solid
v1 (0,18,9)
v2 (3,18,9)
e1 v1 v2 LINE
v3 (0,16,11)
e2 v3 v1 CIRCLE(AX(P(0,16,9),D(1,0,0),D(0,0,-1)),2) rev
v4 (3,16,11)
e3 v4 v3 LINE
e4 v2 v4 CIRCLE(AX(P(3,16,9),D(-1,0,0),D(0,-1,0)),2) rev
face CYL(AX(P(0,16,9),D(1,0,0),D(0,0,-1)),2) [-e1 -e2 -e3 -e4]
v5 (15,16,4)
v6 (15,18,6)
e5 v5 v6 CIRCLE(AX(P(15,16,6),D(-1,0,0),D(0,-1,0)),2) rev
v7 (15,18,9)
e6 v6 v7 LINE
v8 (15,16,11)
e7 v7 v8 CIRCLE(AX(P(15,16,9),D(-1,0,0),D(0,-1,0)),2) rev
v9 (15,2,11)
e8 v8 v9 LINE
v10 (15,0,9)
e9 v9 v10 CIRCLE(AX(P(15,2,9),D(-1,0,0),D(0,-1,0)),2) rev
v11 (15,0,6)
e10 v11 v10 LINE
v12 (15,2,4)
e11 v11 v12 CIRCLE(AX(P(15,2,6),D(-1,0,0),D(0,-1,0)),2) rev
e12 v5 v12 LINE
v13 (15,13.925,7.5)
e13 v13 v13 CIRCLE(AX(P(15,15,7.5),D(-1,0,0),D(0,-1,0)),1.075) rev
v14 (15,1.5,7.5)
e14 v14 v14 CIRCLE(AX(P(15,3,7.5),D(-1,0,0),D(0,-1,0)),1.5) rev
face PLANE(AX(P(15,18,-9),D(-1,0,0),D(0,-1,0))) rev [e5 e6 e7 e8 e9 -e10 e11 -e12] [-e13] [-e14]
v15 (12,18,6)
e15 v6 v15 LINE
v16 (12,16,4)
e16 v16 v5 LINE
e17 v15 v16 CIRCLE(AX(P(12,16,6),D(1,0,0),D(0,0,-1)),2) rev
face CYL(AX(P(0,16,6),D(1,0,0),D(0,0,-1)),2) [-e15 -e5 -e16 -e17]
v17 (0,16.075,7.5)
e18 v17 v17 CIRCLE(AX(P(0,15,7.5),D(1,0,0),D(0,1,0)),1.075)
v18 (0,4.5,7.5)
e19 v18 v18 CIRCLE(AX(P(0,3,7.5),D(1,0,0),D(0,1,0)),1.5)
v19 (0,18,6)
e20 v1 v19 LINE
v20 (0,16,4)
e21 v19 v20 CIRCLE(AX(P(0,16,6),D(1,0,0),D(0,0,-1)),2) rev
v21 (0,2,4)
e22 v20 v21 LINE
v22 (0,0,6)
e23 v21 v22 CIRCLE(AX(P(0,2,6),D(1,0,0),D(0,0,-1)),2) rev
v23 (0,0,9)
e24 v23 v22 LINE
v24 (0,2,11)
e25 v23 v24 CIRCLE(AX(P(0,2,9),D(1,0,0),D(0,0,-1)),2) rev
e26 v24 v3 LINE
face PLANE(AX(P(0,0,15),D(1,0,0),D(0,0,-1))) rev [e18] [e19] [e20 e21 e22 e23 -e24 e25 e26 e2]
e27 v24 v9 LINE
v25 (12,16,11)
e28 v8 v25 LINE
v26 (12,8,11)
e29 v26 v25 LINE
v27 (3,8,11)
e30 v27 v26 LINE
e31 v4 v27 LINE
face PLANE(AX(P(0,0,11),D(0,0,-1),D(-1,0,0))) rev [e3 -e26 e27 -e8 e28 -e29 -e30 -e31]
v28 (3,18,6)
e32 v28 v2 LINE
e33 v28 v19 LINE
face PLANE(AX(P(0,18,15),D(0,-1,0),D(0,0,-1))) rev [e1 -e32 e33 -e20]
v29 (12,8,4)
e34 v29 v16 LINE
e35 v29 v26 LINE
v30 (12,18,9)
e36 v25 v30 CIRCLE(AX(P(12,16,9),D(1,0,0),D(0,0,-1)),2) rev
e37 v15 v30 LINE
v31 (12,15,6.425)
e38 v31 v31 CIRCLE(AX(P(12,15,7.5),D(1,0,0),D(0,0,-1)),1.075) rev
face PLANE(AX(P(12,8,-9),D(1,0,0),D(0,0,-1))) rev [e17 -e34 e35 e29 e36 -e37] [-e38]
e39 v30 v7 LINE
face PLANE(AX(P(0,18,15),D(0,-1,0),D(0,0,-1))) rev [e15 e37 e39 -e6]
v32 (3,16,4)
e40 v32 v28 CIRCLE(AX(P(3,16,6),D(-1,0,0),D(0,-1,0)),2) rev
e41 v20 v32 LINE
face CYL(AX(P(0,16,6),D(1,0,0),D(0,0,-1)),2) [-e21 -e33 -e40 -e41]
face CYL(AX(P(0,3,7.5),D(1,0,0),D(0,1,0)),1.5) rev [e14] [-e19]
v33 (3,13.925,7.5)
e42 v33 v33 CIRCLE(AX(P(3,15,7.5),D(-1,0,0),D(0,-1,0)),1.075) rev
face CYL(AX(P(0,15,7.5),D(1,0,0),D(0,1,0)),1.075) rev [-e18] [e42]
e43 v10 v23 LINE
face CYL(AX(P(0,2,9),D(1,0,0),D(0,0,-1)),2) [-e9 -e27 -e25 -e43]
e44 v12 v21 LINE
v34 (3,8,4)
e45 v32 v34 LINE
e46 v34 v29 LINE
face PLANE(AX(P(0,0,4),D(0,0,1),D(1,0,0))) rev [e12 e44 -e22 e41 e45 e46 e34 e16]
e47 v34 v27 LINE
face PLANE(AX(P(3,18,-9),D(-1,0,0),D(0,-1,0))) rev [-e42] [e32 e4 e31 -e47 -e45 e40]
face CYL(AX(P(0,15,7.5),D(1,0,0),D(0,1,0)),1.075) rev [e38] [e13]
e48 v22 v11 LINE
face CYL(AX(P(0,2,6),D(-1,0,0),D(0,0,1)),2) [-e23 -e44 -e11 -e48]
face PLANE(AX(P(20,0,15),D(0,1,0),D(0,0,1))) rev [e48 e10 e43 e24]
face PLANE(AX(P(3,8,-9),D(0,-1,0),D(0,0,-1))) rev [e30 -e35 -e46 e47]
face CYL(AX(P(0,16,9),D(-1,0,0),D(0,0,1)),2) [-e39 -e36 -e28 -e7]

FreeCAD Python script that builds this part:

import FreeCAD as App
import Part
import Sketcher
Q = App.Units.Quantity


def edges_at(feature, points):
    """Names of the edges that pass closest to the given points."""
    edges = feature.Shape.Edges
    near = lambda p: min(range(len(edges)), key=lambda i: edges[i].distToShape(Part.Vertex(*p))[0])
    return sorted({f"Edge{near(p) + 1}" for p in points})

doc = App.newDocument("Part")
body = doc.addObject("PartDesign::Body", "Body")

sketch1 = body.newObject("Sketcher::SketchObject", "Sketch")
sketch1.AttachmentSupport = (doc.getObject("XY_Plane"), [""])
sketch1.MapMode = "FlatFace"
sketch1.addGeometry(Part.LineSegment(App.Vector(0, 18, 0), App.Vector(0, 0, 0)), False)
sketch1.addGeometry(Part.LineSegment(App.Vector(0, 0, 0), App.Vector(20, 0, 0)), False)
sketch1.addGeometry(Part.LineSegment(App.Vector(20, 0, 0), App.Vector(20, 18, 0)), False)
sketch1.addGeometry(Part.LineSegment(App.Vector(20, 18, 0), App.Vector(0, 18, 0)), False)
sketch1.addConstraint(Sketcher.Constraint("Coincident", 0, 2, 1, 1))
sketch1.addConstraint(Sketcher.Constraint("Coincident", 1, 2, 2, 1))
sketch1.addConstraint(Sketcher.Constraint("Coincident", 2, 2, 3, 1))
sketch1.addConstraint(Sketcher.Constraint("Coincident", 3, 2, 0, 1))
sketch1.addConstraint(Sketcher.Constraint("Vertical", 0))
sketch1.addConstraint(Sketcher.Constraint("Horizontal", 1))
sketch1.addConstraint(Sketcher.Constraint("Vertical", 2))
sketch1.addConstraint(Sketcher.Constraint("Horizontal", 3))
sketch1.addConstraint(Sketcher.Constraint("Coincident", 0, 2, -1, 1))
sketch1.addConstraint(Sketcher.Constraint("DistanceX", 1, 1, 1, 2, Q("20 mm")))
sketch1.addConstraint(Sketcher.Constraint("DistanceY", 0, 2, 0, 1, Q("18 mm")))
pad1 = body.newObject("PartDesign::Pad", "Pad")
pad1.Profile = sketch1
pad1.Length = 15

sketch2 = body.newObject("Sketcher::SketchObject", "Sketch001")
sketch2.AttachmentSupport = (doc.getObject("YZ_Plane"), [""])
sketch2.MapMode = "FlatFace"
sketch2.AttachmentOffset = App.Placement(App.Vector(0, 0, 20), App.Rotation())
sketch2.addGeometry(Part.Circle(App.Vector(3, 7.5, 0), App.Vector(0, 0, 1), 1.5), False)
sketch2.addGeometry(Part.Circle(App.Vector(22, 7.5, 0), App.Vector(0, 0, 1), 1.5), False)
sketch2.addConstraint(Sketcher.Constraint("Equal", 0, 1))
sketch2.addConstraint(Sketcher.Constraint("Horizontal", 0, 3, 1, 3))
sketch2.addConstraint(Sketcher.Constraint("Diameter", 0, Q("3 mm")))
sketch2.addConstraint(Sketcher.Constraint("DistanceX", -1, 1, 0, 3, Q("3 mm")))
sketch2.addConstraint(Sketcher.Constraint("DistanceX", -1, 1, 1, 3, Q("22 mm")))
sketch2.addConstraint(Sketcher.Constraint("DistanceY", -1, 1, 0, 3, Q("7.5 mm")))
pocket1 = body.newObject("PartDesign::Pocket", "Pocket")
pocket1.Profile = sketch2
pocket1.Type = "ThroughAll"

sketch3 = body.newObject("Sketcher::SketchObject", "Sketch002")
sketch3.AttachmentSupport = (doc.getObject("XY_Plane"), [""])
sketch3.MapMode = "FlatFace"
sketch3.AttachmentOffset = App.Placement(App.Vector(0, 0, 15), App.Rotation())
sketch3.addGeometry(Part.LineSegment(App.Vector(5, 18, 0), App.Vector(5, 8, 0)), False)
sketch3.addGeometry(Part.LineSegment(App.Vector(5, 8, 0), App.Vector(15, 8, 0)), False)
sketch3.addGeometry(Part.LineSegment(App.Vector(15, 8, 0), App.Vector(15, 18, 0)), False)
sketch3.addGeometry(Part.LineSegment(App.Vector(15, 18, 0), App.Vector(5, 18, 0)), False)
sketch3.addConstraint(Sketcher.Constraint("Coincident", 0, 2, 1, 1))
sketch3.addConstraint(Sketcher.Constraint("Coincident", 1, 2, 2, 1))
sketch3.addConstraint(Sketcher.Constraint("Coincident", 2, 2, 3, 1))
sketch3.addConstraint(Sketcher.Constraint("Coincident", 3, 2, 0, 1))
sketch3.addConstraint(Sketcher.Constraint("Vertical", 0))
sketch3.addConstraint(Sketcher.Constraint("Horizontal", 1))
sketch3.addConstraint(Sketcher.Constraint("Vertical", 2))
sketch3.addConstraint(Sketcher.Constraint("Horizontal", 3))
sketch3.addConstraint(Sketcher.Constraint("Equal", 3, 0))
sketch3.addConstraint(Sketcher.Constraint("DistanceX", 1, 1, 1, 2, Q("10 mm")))
sketch3.addConstraint(Sketcher.Constraint("DistanceX", -1, 1, 0, 2, Q("5 mm")))
sketch3.addConstraint(Sketcher.Constraint("DistanceY", -1, 1, 0, 2, Q("8 mm")))
pocket2 = body.newObject("PartDesign::Pocket", "Pocket001")
pocket2.Profile = sketch3
pocket2.Length = 15

sketch4 = body.newObject("Sketcher::SketchObject", "Sketch003")
sketch4.AttachmentSupport = (doc.getObject("YZ_Plane"), [""])
sketch4.MapMode = "FlatFace"
sketch4.AttachmentOffset = App.Placement(App.Vector(0, 0, 20), App.Rotation())
sketch4.addGeometry(Part.LineSegment(App.Vector(18, 15, 0), App.Vector(0, 15, 0)), False)
sketch4.addGeometry(Part.LineSegment(App.Vector(0, 15, 0), App.Vector(0, 11, 0)), False)
sketch4.addGeometry(Part.LineSegment(App.Vector(0, 11, 0), App.Vector(18, 11, 0)), False)
sketch4.addGeometry(Part.LineSegment(App.Vector(18, 11, 0), App.Vector(18, 15, 0)), False)
sketch4.addGeometry(Part.LineSegment(App.Vector(18, 4, 0), App.Vector(0, 4, 0)), False)
sketch4.addGeometry(Part.LineSegment(App.Vector(0, 4, 0), App.Vector(0, 0, 0)), False)
sketch4.addGeometry(Part.LineSegment(App.Vector(0, 0, 0), App.Vector(18, 0, 0)), False)
sketch4.addGeometry(Part.LineSegment(App.Vector(18, 0, 0), App.Vector(18, 4, 0)), False)
sketch4.addConstraint(Sketcher.Constraint("Coincident", 0, 2, 1, 1))
sketch4.addConstraint(Sketcher.Constraint("Coincident", 1, 2, 2, 1))
sketch4.addConstraint(Sketcher.Constraint("Coincident", 2, 2, 3, 1))
sketch4.addConstraint(Sketcher.Constraint("Coincident", 3, 2, 0, 1))
sketch4.addConstraint(Sketcher.Constraint("Coincident", 4, 2, 5, 1))
sketch4.addConstraint(Sketcher.Constraint("Coincident", 5, 2, 6, 1))
sketch4.addConstraint(Sketcher.Constraint("Coincident", 6, 2, 7, 1))
sketch4.addConstraint(Sketcher.Constraint("Coincident", 7, 2, 4, 1))
sketch4.addConstraint(Sketcher.Constraint("Horizontal", 0))
sketch4.addConstraint(Sketcher.Constraint("Vertical", 1))
sketch4.addConstraint(Sketcher.Constraint("Horizontal", 2))
sketch4.addConstraint(Sketcher.Constraint("Vertical", 3))
sketch4.addConstraint(Sketcher.Constraint("Horizontal", 4))
sketch4.addConstraint(Sketcher.Constraint("Vertical", 5))
sketch4.addConstraint(Sketcher.Constraint("Horizontal", 6))
sketch4.addConstraint(Sketcher.Constraint("Vertical", 7))
sketch4.addConstraint(Sketcher.Constraint("Coincident", 5, 2, -1, 1))
sketch4.addConstraint(Sketcher.Constraint("PointOnObject", 0, 2, -2))
sketch4.addConstraint(Sketcher.Constraint("Vertical", 3, 2, 6, 2))
sketch4.addConstraint(Sketcher.Constraint("Equal", 3, 5))
sketch4.addConstraint(Sketcher.Constraint("DistanceX", 0, 2, 0, 1, Q("18 mm")))
sketch4.addConstraint(Sketcher.Constraint("DistanceY", 1, 2, 1, 1, Q("4 mm")))
sketch4.addConstraint(Sketcher.Constraint("DistanceY", -1, 1, 0, 2, Q("15 mm")))
pocket3 = body.newObject("PartDesign::Pocket", "Pocket002")
pocket3.Profile = sketch4
pocket3.Type = "ThroughAll"

sketch5 = body.newObject("Sketcher::SketchObject", "Sketch004")
sketch5.AttachmentSupport = (doc.getObject("YZ_Plane"), [""])
sketch5.MapMode = "FlatFace"
sketch5.AttachmentOffset = App.Placement(App.Vector(0, 0, 20), App.Rotation())
sketch5.addGeometry(Part.Circle(App.Vector(15, 7.5, 0), App.Vector(0, 0, 1), 1), False)
sketch5.addConstraint(Sketcher.Constraint("Diameter", 0, Q("2 mm")))
sketch5.addConstraint(Sketcher.Constraint("DistanceX", -1, 1, 0, 3, Q("15 mm")))
sketch5.addConstraint(Sketcher.Constraint("DistanceY", -1, 1, 0, 3, Q("7.5 mm")))
pocket4 = body.newObject("PartDesign::Pocket", "Pocket003")
pocket4.Profile = sketch5
pocket4.Type = "ThroughAll"

sketch6 = body.newObject("Sketcher::SketchObject", "Sketch005")
sketch6.AttachmentSupport = (doc.getObject("XY_Plane"), [""])
sketch6.MapMode = "FlatFace"
sketch6.AttachmentOffset = App.Placement(App.Vector(0, 0, 11), App.Rotation())
sketch6.addGeometry(Part.LineSegment(App.Vector(4, 18, 0), App.Vector(4, 8, 0)), False)
sketch6.addGeometry(Part.LineSegment(App.Vector(4, 8, 0), App.Vector(16, 8, 0)), False)
sketch6.addGeometry(Part.LineSegment(App.Vector(16, 8, 0), App.Vector(16, 18, 0)), False)
sketch6.addGeometry(Part.LineSegment(App.Vector(16, 18, 0), App.Vector(4, 18, 0)), False)
sketch6.addConstraint(Sketcher.Constraint("Coincident", 0, 2, 1, 1))
sketch6.addConstraint(Sketcher.Constraint("Coincident", 1, 2, 2, 1))
sketch6.addConstraint(Sketcher.Constraint("Coincident", 2, 2, 3, 1))
sketch6.addConstraint(Sketcher.Constraint("Coincident", 3, 2, 0, 1))
sketch6.addConstraint(Sketcher.Constraint("Vertical", 0))
sketch6.addConstraint(Sketcher.Constraint("Horizontal", 1))
sketch6.addConstraint(Sketcher.Constraint("Vertical", 2))
sketch6.addConstraint(Sketcher.Constraint("Horizontal", 3))
sketch6.addConstraint(Sketcher.Constraint("DistanceY", 0, 2, 0, 1, Q("10 mm")))
sketch6.addConstraint(Sketcher.Constraint("DistanceX", 1, 1, 1, 2, Q("11.4 mm")))
sketch6.addConstraint(Sketcher.Constraint("DistanceY", -1, 1, 0, 2, Q("8 mm")))
sketch6.addConstraint(Sketcher.Constraint("DistanceX", -1, 1, 0, 2, Q("4.3 mm")))
pocket5 = body.newObject("PartDesign::Pocket", "Pocket004")
pocket5.Profile = sketch6
pocket5.Length = 10

sketch7 = body.newObject("Sketcher::SketchObject", "Sketch006")
sketch7.AttachmentSupport = (doc.getObject("XY_Plane"), [""])
sketch7.MapMode = "FlatFace"
sketch7.AttachmentOffset = App.Placement(App.Vector(0, 0, 11), App.Rotation())
sketch7.addGeometry(Part.LineSegment(App.Vector(4, 18, 0), App.Vector(4, 8, 0)), False)
sketch7.addGeometry(Part.LineSegment(App.Vector(4, 8, 0), App.Vector(16, 8, 0)), False)
sketch7.addGeometry(Part.LineSegment(App.Vector(16, 8, 0), App.Vector(16, 18, 0)), False)
sketch7.addGeometry(Part.LineSegment(App.Vector(16, 18, 0), App.Vector(4, 18, 0)), False)
sketch7.addConstraint(Sketcher.Constraint("Coincident", 0, 2, 1, 1))
sketch7.addConstraint(Sketcher.Constraint("Coincident", 1, 2, 2, 1))
sketch7.addConstraint(Sketcher.Constraint("Coincident", 2, 2, 3, 1))
sketch7.addConstraint(Sketcher.Constraint("Coincident", 3, 2, 0, 1))
sketch7.addConstraint(Sketcher.Constraint("Vertical", 0))
sketch7.addConstraint(Sketcher.Constraint("Horizontal", 1))
sketch7.addConstraint(Sketcher.Constraint("Vertical", 2))
sketch7.addConstraint(Sketcher.Constraint("Horizontal", 3))
sketch7.addConstraint(Sketcher.Constraint("DistanceY", 0, 2, 0, 1, Q("10 mm")))
sketch7.addConstraint(Sketcher.Constraint("DistanceX", 1, 1, 1, 2, Q("11.4 mm")))
sketch7.addConstraint(Sketcher.Constraint("DistanceY", -1, 1, 0, 2, Q("8 mm")))
sketch7.addConstraint(Sketcher.Constraint("DistanceX", -1, 1, 0, 2, Q("4.3 mm")))
pad2 = body.newObject("PartDesign::Pad", "Pad001")
pad2.Profile = sketch7
pad2.Length = 7
pad2.Reversed = True

sketch8 = body.newObject("Sketcher::SketchObject", "Sketch007")
sketch8.AttachmentSupport = (doc.getObject("YZ_Plane"), [""])
sketch8.MapMode = "FlatFace"
sketch8.AttachmentOffset = App.Placement(App.Vector(0, 0, 20), App.Rotation())
sketch8.addGeometry(Part.Circle(App.Vector(15, 7.5, 0), App.Vector(0, 0, 1), 1.1), False)
sketch8.addConstraint(Sketcher.Constraint("Diameter", 0, Q("2.15 mm")))
sketch8.addConstraint(Sketcher.Constraint("DistanceX", -1, 1, 0, 3, Q("15 mm")))
sketch8.addConstraint(Sketcher.Constraint("DistanceY", -1, 1, 0, 3, Q("7.5 mm")))
pocket6 = body.newObject("PartDesign::Pocket", "Pocket005")
pocket6.Profile = sketch8
pocket6.Length = 20

sketch9 = body.newObject("Sketcher::SketchObject", "Sketch008")
sketch9.AttachmentSupport = (doc.getObject("XY_Plane"), [""])
sketch9.MapMode = "FlatFace"
sketch9.AttachmentOffset = App.Placement(App.Vector(0, 0, 11), App.Rotation())
sketch9.addGeometry(Part.LineSegment(App.Vector(15, 18, 0), App.Vector(15, 0, 0)), False)
sketch9.addGeometry(Part.LineSegment(App.Vector(15, 0, 0), App.Vector(20, 0, 0)), False)
sketch9.addGeometry(Part.LineSegment(App.Vector(20, 0, 0), App.Vector(20, 18, 0)), False)
sketch9.addGeometry(Part.LineSegment(App.Vector(20, 18, 0), App.Vector(15, 18, 0)), False)
sketch9.addConstraint(Sketcher.Constraint("Coincident", 0, 2, 1, 1))
sketch9.addConstraint(Sketcher.Constraint("Coincident", 1, 2, 2, 1))
sketch9.addConstraint(Sketcher.Constraint("Coincident", 2, 2, 3, 1))
sketch9.addConstraint(Sketcher.Constraint("Coincident", 3, 2, 0, 1))
sketch9.addConstraint(Sketcher.Constraint("Vertical", 0))
sketch9.addConstraint(Sketcher.Constraint("Horizontal", 1))
sketch9.addConstraint(Sketcher.Constraint("Vertical", 2))
sketch9.addConstraint(Sketcher.Constraint("Horizontal", 3))
sketch9.addConstraint(Sketcher.Constraint("PointOnObject", 0, 2, -1))
sketch9.addConstraint(Sketcher.Constraint("DistanceX", 1, 1, 1, 2, Q("5 mm")))
sketch9.addConstraint(Sketcher.Constraint("DistanceY", 0, 2, 0, 1, Q("18 mm")))
sketch9.addConstraint(Sketcher.Constraint("DistanceX", -1, 1, 0, 2, Q("15 mm")))
pocket7 = body.newObject("PartDesign::Pocket", "Pocket006")
pocket7.Profile = sketch9
pocket7.Length = 20

sketch10 = body.newObject("Sketcher::SketchObject", "Sketch009")
sketch10.AttachmentSupport = (doc.getObject("XY_Plane"), [""])
sketch10.MapMode = "FlatFace"
sketch10.AttachmentOffset = App.Placement(App.Vector(0, 0, 11), App.Rotation())
sketch10.addGeometry(Part.LineSegment(App.Vector(3, 18, 0), App.Vector(3, 8, 0)), False)
sketch10.addGeometry(Part.LineSegment(App.Vector(3, 8, 0), App.Vector(12, 8, 0)), False)
sketch10.addGeometry(Part.LineSegment(App.Vector(12, 8, 0), App.Vector(12, 18, 0)), False)
sketch10.addGeometry(Part.LineSegment(App.Vector(12, 18, 0), App.Vector(3, 18, 0)), False)
sketch10.addConstraint(Sketcher.Constraint("Coincident", 0, 2, 1, 1))
sketch10.addConstraint(Sketcher.Constraint("Coincident", 1, 2, 2, 1))
sketch10.addConstraint(Sketcher.Constraint("Coincident", 2, 2, 3, 1))
sketch10.addConstraint(Sketcher.Constraint("Coincident", 3, 2, 0, 1))
sketch10.addConstraint(Sketcher.Constraint("Vertical", 0))
sketch10.addConstraint(Sketcher.Constraint("Horizontal", 1))
sketch10.addConstraint(Sketcher.Constraint("Vertical", 2))
sketch10.addConstraint(Sketcher.Constraint("Horizontal", 3))
sketch10.addConstraint(Sketcher.Constraint("DistanceX", 1, 1, 1, 2, Q("9 mm")))
sketch10.addConstraint(Sketcher.Constraint("DistanceY", 0, 2, 0, 1, Q("10 mm")))
sketch10.addConstraint(Sketcher.Constraint("DistanceX", -1, 1, 0, 2, Q("3 mm")))
sketch10.addConstraint(Sketcher.Constraint("DistanceY", -1, 1, 0, 2, Q("8 mm")))
pocket8 = body.newObject("PartDesign::Pocket", "Pocket007")
pocket8.Profile = sketch10
pocket8.Length = 20
doc.recompute()

fillet = body.newObject("PartDesign::Fillet", "Fillet")
fillet.Base = (pocket8, edges_at(pocket8, [(7.5, 0, 11)]))
fillet.Radius = 2
doc.recompute()

fillet2 = body.newObject("PartDesign::Fillet", "Fillet001")
fillet2.Base = (fillet, edges_at(fillet, [(7.5, 0, 4)]))
fillet2.Radius = 2
doc.recompute()

fillet3 = body.newObject("PartDesign::Fillet", "Fillet002")
fillet3.Base = (fillet2, edges_at(fillet2, [(1.5, 18, 11)]))
fillet3.Radius = 2
doc.recompute()

fillet4 = body.newObject("PartDesign::Fillet", "Fillet003")
fillet4.Base = (fillet3, edges_at(fillet3, [(13.5, 18, 11)]))
fillet4.Radius = 2
doc.recompute()

fillet5 = body.newObject("PartDesign::Fillet", "Fillet004")
fillet5.Base = (fillet4, edges_at(fillet4, [(13.5, 18, 4)]))
fillet5.Radius = 2
doc.recompute()

fillet6 = body.newObject("PartDesign::Fillet", "Fillet005")
fillet6.Base = (fillet5, edges_at(fillet5, [(1.5, 18, 4)]))
fillet6.Radius = 2

doc.recompute()
